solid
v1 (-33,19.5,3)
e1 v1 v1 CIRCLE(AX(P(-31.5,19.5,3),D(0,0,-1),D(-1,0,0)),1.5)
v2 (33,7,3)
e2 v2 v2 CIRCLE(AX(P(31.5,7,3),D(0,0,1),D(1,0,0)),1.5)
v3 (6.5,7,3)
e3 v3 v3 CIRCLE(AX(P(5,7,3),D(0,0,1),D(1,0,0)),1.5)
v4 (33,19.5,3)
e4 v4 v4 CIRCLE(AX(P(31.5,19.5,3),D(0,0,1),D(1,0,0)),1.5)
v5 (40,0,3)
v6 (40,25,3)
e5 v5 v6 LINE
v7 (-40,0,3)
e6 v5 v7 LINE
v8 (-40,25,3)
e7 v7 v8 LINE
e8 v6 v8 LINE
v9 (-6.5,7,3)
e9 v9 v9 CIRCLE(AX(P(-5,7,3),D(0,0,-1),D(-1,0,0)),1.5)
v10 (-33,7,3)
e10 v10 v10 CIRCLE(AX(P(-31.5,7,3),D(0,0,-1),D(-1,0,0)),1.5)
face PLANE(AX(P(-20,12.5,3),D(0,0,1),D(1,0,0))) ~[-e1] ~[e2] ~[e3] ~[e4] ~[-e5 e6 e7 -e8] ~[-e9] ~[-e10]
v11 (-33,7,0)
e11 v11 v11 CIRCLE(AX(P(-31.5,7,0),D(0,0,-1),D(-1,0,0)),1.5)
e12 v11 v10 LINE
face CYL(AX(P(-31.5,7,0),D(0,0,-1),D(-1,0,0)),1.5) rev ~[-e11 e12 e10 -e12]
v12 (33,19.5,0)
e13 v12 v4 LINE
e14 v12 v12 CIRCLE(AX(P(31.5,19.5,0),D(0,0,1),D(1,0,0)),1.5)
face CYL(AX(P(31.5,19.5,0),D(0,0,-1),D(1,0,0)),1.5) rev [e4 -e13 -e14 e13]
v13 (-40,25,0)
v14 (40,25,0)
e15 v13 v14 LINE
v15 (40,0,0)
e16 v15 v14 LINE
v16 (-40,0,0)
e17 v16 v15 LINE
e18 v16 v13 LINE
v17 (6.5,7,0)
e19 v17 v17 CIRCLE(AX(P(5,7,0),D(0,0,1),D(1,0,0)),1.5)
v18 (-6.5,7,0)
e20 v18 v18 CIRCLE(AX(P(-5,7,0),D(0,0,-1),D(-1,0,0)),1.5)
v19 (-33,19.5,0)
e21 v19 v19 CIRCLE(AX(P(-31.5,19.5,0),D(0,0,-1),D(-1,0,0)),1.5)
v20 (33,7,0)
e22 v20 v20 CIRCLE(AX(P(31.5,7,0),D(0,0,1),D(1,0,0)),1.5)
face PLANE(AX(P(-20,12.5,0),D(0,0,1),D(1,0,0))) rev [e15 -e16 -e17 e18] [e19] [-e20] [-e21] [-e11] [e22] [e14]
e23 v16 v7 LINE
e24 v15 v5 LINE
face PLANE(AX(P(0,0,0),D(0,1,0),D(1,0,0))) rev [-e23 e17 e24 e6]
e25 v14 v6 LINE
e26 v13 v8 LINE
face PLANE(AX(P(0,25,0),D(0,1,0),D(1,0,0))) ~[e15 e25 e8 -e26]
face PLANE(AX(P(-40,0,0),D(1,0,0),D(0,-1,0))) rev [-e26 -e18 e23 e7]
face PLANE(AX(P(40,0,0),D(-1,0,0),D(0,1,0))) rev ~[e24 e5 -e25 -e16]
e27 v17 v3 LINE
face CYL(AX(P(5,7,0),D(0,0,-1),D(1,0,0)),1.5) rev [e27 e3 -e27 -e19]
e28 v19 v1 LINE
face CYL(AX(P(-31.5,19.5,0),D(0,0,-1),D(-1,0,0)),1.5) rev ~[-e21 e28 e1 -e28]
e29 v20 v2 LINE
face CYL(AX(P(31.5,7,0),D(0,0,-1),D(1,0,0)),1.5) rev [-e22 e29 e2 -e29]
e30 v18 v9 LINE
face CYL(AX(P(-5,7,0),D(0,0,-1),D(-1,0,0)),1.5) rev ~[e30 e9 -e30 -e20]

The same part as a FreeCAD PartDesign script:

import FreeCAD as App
import Part
import Sketcher
from FreeCAD import Vector

doc = App.newDocument("Part")
body = doc.addObject("PartDesign::Body", "Body")

# Sketch on XY plane
sketch1 = doc.addObject("Sketcher::SketchObject", "Sketch")
body.addObject(sketch1)
sketch1.AttachmentSupport = (doc.XY_Plane, [""])
sketch1.MapMode = "FlatFace"
sketch1.addGeometry([
    Part.LineSegment(Vector(0, 25, 0), Vector(0, 0, 0)),  # 0
    Part.LineSegment(Vector(0, 0, 0), Vector(40, 0, 0)),  # 1
    Part.LineSegment(Vector(40, 0, 0), Vector(40, 25, 0)),  # 2
    Part.LineSegment(Vector(40, 25, 0), Vector(0, 25, 0)),  # 3
    Part.Circle(Vector(5, 7, 0), Vector(0, 0, 1), 1.5),  # 4
    Part.Circle(Vector(31.5, 7, 0), Vector(0, 0, 1), 1.5),  # 5
    Part.Circle(Vector(31.5, 19.5, 0), Vector(0, 0, 1), 1.5),  # 6
], False)
sketch1.addConstraint([
    Sketcher.Constraint("Coincident", 0, 2, 1, 1),
    Sketcher.Constraint("Coincident", 1, 2, 2, 1),
    Sketcher.Constraint("Coincident", 2, 2, 3, 1),
    Sketcher.Constraint("Coincident", 3, 2, 0, 1),
    Sketcher.Constraint("Vertical", 0),
    Sketcher.Constraint("Horizontal", 1),
    Sketcher.Constraint("Vertical", 2),
    Sketcher.Constraint("Horizontal", 3),
    Sketcher.Constraint("Coincident", 0, 2, -1, 1),
    Sketcher.Constraint("Equal", 4, 5),
    Sketcher.Constraint("Equal", 5, 6),
    Sketcher.Constraint("Horizontal", 4, 3, 5, 3),
    Sketcher.Constraint("Vertical", 5, 3, 6, 3),
    Sketcher.Constraint("Diameter", 4, 3.0),
    Sketcher.Constraint("DistanceX", 1, 1, 1, 2, 40.0),
    Sketcher.Constraint("DistanceY", 0, 2, 0, 1, 25.0),
    Sketcher.Constraint("DistanceX", -1, 1, 4, 3, 5.0),
    Sketcher.Constraint("DistanceY", -1, 1, 4, 3, 7.0),
    Sketcher.Constraint("DistanceX", -1, 1, 5, 3, 31.5),
    Sketcher.Constraint("DistanceY", -1, 1, 6, 3, 19.5),
])
pad1 = doc.addObject("PartDesign::Pad", "Pad")
body.addObject(pad1)
pad1.Profile = sketch1
pad1.Length = 3
doc.recompute()

mirrored = doc.addObject("PartDesign::Mirrored", "Mirrored")
body.addObject(mirrored)
mirrored.Originals = [pad1]
mirrored.MirrorPlane = (doc.YZ_Plane, [""])
body.Tip = mirrored

doc.recompute()
